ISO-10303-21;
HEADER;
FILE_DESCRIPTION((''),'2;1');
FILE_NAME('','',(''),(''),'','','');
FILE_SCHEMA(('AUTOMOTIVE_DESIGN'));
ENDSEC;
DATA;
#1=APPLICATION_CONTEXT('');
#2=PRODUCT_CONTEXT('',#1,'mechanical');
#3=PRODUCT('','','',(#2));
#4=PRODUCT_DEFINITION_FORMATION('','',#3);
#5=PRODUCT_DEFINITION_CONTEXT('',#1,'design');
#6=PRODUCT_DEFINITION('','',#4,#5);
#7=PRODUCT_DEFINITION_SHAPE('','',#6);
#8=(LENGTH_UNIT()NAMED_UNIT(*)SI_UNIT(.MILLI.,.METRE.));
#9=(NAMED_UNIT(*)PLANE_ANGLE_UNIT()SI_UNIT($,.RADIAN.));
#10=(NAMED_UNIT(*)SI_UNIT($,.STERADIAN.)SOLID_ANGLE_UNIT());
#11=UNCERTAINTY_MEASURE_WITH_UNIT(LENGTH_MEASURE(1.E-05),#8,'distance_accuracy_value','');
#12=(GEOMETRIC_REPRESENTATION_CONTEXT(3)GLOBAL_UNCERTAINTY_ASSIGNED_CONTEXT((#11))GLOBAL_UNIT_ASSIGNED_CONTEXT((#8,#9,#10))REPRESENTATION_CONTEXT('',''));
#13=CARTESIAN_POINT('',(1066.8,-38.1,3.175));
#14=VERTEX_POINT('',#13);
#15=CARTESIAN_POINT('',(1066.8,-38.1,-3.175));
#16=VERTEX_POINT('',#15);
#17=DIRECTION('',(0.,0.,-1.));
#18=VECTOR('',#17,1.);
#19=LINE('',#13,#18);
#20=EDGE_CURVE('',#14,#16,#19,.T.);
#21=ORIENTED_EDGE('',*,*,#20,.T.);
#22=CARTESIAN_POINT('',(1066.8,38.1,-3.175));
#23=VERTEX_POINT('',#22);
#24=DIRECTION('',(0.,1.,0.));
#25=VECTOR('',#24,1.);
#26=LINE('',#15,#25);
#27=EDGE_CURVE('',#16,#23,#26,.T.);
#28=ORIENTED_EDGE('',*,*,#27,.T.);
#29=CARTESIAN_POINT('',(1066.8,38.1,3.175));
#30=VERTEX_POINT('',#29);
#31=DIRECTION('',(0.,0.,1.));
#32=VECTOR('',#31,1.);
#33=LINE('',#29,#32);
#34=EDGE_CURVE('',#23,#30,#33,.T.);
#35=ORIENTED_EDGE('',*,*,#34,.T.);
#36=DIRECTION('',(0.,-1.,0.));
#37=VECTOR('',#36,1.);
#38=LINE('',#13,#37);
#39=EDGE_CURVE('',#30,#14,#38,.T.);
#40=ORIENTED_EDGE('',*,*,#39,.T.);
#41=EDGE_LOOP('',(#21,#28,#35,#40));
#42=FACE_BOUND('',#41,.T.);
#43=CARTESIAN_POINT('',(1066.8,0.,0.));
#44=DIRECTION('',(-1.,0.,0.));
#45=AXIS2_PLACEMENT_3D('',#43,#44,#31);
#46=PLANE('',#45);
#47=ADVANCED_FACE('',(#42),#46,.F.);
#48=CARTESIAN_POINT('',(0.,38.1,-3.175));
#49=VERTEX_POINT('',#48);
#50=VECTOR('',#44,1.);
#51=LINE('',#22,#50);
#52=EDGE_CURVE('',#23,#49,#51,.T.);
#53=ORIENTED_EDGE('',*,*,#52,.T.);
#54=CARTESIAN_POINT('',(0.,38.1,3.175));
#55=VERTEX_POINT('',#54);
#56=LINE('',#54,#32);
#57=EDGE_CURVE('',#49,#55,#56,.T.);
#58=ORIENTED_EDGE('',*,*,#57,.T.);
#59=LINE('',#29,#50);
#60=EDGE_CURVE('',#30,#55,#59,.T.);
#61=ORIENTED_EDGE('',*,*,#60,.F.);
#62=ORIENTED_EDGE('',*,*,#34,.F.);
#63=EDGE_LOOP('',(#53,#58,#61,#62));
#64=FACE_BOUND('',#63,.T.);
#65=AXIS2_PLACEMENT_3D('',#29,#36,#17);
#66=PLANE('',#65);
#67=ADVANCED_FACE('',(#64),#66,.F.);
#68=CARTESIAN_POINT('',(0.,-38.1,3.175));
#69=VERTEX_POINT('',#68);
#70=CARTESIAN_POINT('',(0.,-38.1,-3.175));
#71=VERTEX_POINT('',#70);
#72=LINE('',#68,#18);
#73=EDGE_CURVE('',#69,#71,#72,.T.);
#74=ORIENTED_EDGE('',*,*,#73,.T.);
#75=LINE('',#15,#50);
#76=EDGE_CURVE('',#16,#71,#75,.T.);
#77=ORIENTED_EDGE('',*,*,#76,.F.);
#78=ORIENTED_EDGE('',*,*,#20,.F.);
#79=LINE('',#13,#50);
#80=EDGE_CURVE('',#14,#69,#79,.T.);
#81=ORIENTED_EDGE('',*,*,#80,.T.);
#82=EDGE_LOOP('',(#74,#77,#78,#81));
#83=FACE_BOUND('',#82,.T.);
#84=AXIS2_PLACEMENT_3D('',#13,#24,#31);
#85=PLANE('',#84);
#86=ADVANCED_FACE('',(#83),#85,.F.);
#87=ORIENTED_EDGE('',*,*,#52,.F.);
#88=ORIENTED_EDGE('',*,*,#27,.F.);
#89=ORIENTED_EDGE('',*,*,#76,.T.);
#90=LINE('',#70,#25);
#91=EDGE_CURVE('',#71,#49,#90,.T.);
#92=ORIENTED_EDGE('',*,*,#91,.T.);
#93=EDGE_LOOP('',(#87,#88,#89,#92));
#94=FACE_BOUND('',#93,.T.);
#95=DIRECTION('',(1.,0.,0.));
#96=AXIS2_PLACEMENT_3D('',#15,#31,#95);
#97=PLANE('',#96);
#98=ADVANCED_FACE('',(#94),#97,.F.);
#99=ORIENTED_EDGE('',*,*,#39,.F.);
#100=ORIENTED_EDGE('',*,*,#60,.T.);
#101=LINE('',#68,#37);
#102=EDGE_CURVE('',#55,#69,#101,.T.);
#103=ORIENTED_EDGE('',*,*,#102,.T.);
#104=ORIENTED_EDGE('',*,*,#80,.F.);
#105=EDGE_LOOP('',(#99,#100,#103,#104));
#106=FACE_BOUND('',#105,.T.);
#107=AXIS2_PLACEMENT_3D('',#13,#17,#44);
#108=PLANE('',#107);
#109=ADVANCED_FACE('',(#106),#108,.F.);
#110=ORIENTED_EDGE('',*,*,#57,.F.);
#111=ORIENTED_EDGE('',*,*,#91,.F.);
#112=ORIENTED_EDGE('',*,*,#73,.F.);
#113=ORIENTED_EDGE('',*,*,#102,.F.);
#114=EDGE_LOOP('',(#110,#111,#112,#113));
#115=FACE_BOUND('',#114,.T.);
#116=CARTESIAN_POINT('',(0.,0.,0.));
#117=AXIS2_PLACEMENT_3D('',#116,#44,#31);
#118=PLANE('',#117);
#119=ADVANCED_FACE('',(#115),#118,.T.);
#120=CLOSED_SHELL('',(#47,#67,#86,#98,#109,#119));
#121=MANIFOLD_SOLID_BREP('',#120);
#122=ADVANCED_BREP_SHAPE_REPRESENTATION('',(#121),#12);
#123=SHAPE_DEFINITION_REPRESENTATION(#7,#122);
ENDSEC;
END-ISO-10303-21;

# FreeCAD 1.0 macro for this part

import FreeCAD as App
import Part
import Sketcher

V = App.Vector
Q = App.Units.Quantity


def add_polygon(sketch, points):
    """Adds a closed chain of lines whose ends are joined by coincident constraints."""
    first, n = sketch.GeometryCount, len(points)
    for a, b in zip(points, points[1:] + points[:1]):
        sketch.addGeometry(Part.LineSegment(App.Vector(*a, 0), App.Vector(*b, 0)), False)
    for i in range(n):
        sketch.addConstraint(Sketcher.Constraint("Coincident", first + i, 2, first + (i + 1) % n, 1))

doc = App.newDocument("Part")
body = doc.addObject("PartDesign::Body", "Body")

# Sketch on YZ plane
sketch1 = body.newObject("Sketcher::SketchObject", "Sketch")
sketch1.AttachmentSupport = (doc.getObject("YZ_Plane"), [""])
sketch1.MapMode = "FlatFace"
add_polygon(sketch1, [(38.1, 3.175), (-38.1, 3.175), (-38.1, -3.175), (38.1, -3.175)])  # lines 0-3
sketch1.addConstraint(Sketcher.Constraint("Horizontal", 0))
sketch1.addConstraint(Sketcher.Constraint("Vertical", 1))
sketch1.addConstraint(Sketcher.Constraint("Horizontal", 2))
sketch1.addConstraint(Sketcher.Constraint("Vertical", 3))
sketch1.addConstraint(Sketcher.Constraint("Symmetric", 0, 2, 2, 2, -1, 1))
sketch1.addConstraint(Sketcher.Constraint("DistanceX", 0, 2, 0, 1, Q("3 in")))
sketch1.addConstraint(Sketcher.Constraint("DistanceY", 1, 2, 1, 1, Q("0.25 in")))
pad1 = body.newObject("PartDesign::Pad", "Pad")
pad1.Profile = sketch1
pad1.Length = Q("42 in")

doc.recompute()
